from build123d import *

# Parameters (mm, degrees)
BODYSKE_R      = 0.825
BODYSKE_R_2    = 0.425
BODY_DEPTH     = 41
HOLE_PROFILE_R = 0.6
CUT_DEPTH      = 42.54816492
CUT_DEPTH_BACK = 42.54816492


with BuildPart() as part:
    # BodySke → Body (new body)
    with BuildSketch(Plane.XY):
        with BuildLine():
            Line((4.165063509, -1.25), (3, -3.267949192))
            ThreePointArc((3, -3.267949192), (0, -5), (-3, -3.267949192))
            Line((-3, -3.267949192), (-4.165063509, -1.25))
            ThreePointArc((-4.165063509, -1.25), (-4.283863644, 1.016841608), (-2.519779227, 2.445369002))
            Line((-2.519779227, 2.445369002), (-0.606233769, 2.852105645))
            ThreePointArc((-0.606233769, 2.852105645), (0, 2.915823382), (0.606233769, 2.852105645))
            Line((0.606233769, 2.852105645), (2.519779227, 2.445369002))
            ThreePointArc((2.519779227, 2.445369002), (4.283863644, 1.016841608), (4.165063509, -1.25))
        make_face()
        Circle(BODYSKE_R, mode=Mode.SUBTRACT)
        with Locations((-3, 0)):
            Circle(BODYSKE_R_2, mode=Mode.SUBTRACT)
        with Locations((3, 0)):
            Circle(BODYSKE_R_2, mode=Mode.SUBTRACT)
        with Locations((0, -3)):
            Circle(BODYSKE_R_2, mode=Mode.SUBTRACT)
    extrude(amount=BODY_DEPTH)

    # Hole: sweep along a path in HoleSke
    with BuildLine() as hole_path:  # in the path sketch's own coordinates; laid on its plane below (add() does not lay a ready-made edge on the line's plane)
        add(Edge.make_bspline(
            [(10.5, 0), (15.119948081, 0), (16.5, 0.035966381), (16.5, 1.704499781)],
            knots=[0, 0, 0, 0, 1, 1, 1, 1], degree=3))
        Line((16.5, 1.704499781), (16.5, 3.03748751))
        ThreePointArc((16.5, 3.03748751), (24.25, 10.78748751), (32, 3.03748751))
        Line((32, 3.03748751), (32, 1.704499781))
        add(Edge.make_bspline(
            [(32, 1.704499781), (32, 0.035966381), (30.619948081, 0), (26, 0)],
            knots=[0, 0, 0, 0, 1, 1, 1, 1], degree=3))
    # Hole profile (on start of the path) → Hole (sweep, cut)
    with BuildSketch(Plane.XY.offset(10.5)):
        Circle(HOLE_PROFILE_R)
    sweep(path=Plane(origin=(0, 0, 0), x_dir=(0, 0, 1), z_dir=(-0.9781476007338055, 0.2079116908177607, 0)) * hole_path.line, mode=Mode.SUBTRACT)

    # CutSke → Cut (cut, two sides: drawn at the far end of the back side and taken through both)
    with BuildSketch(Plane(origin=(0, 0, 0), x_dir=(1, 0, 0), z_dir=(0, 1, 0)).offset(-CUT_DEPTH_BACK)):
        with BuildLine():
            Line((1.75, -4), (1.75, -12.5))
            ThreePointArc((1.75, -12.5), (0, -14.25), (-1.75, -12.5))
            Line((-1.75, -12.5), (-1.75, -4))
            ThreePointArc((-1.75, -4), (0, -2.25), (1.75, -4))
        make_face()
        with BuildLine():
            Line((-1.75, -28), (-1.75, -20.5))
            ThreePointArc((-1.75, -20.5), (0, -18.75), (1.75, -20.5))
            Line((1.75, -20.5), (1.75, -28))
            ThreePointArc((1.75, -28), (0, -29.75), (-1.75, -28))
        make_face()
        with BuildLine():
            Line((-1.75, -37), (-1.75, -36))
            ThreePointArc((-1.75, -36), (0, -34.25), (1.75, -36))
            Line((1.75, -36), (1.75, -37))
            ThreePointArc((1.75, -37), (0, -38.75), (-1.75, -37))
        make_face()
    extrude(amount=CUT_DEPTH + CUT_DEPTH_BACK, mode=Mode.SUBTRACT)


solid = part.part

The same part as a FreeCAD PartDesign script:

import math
import FreeCAD as App
import Part
import Sketcher
Q = App.Units.Quantity

doc = App.newDocument("Part")
body = doc.addObject("PartDesign::Body", "Body")

sketch1 = body.newObject("Sketcher::SketchObject", "Sketch")
sketch1.AttachmentSupport = (doc.getObject("XY_Plane"), [""])
sketch1.MapMode = "FlatFace"
sketch1.addGeometry([
    Part.LineSegment(App.Vector(3, -3.267949, 0), App.Vector(4.165064, -1.25, 0)),
    Part.ArcOfCircle(Part.Circle(App.Vector(2, 0, 0), App.Vector(0, 0, 1), 2.5), math.radians(-30), math.radians(78)),
    Part.LineSegment(App.Vector(2.519779, 2.445369, 0), App.Vector(0.606234, 2.852106, 0)),
    Part.ArcOfCircle(Part.Circle(App.Vector(0, 0, 0), App.Vector(0, 0, 1), 2.915823), math.radians(78), math.radians(102)),
    Part.LineSegment(App.Vector(-0.606234, 2.852106, 0), App.Vector(-2.519779, 2.445369, 0)),
    Part.ArcOfCircle(Part.Circle(App.Vector(-2, 0, 0), App.Vector(0, 0, 1), 2.5), math.radians(102), math.radians(210)),
    Part.LineSegment(App.Vector(-4.165064, -1.25, 0), App.Vector(-3, -3.267949, 0)),
    Part.ArcOfCircle(Part.Circle(App.Vector(0, -1.535898, 0), App.Vector(0, 0, 1), 3.464102), math.radians(-150), math.radians(-30)),
    Part.Circle(App.Vector(0, -3, 0), App.Vector(0, 0, 1), 0.425),
    Part.Circle(App.Vector(3, 0, 0), App.Vector(0, 0, 1), 0.425),
    Part.Circle(App.Vector(0, 0, 0), App.Vector(0, 0, 1), 0.825),
    Part.Circle(App.Vector(-3, 0, 0), App.Vector(0, 0, 1), 0.425),
], False)
sketch1.addConstraint([
    Sketcher.Constraint("Tangent", 0, 2, 1, 1),
    Sketcher.Constraint("Tangent", 1, 2, 2, 1),
    Sketcher.Constraint("Tangent", 2, 2, 3, 1),
    Sketcher.Constraint("Tangent", 3, 2, 4, 1),
    Sketcher.Constraint("Tangent", 4, 2, 5, 1),
    Sketcher.Constraint("Tangent", 5, 2, 6, 1),
    Sketcher.Constraint("Tangent", 6, 2, 7, 1),
    Sketcher.Constraint("Tangent", 7, 2, 0, 1),
    Sketcher.Constraint("Coincident", 3, 3, -1, 1),
    Sketcher.Constraint("Coincident", 10, 3, -1, 1),
    Sketcher.Constraint("Equal", 1, 5),
    Sketcher.Constraint("Equal", 8, 9),
    Sketcher.Constraint("Equal", 9, 11),
    Sketcher.Constraint("Symmetric", 1, 3, 5, 3, -1, 1),
    Sketcher.Constraint("Symmetric", 9, 3, 11, 3, -1, 1),
    Sketcher.Constraint("Symmetric", 0, 2, 5, 2, -2),
    Sketcher.Constraint("PointOnObject", 8, 3, -2),
    Sketcher.Constraint("PointOnObject", 9, 3, -1),
    Sketcher.Constraint("Vertical", 11, 3, 6, 2),
    Sketcher.Constraint("Radius", 1, 2.5),
    Sketcher.Constraint("Diameter", 8, 0.85),
    Sketcher.Constraint("Diameter", 10, 1.65),
    Sketcher.Constraint("Angle", 0, Q("60 deg")),
    Sketcher.Constraint("Angle", 2, Q("168 deg")),
    Sketcher.Constraint("DistanceX", -1, 1, 1, 3, 2.0),
    Sketcher.Constraint("DistanceY", 8, 3, -1, 1, 3.0),
    Sketcher.Constraint("DistanceX", -1, 1, 9, 3, 3.0),
])
pad1 = body.newObject("PartDesign::Pad", "Pad")
pad1.Profile = sketch1
pad1.Length = 41

sketch2 = body.newObject("Sketcher::SketchObject", "Sketch001")
sketch2.AttachmentSupport = (doc.getObject("XY_Plane"), [""])
sketch2.MapMode = "FlatFace"
sketch2.AttachmentOffset = App.Placement(App.Vector(0, 0, 10.5), App.Rotation())
sketch2.addGeometry(Part.Circle(App.Vector(0, 0, 0), App.Vector(0, 0, 1), 0.6), False)
sketch2.addConstraint([
    Sketcher.Constraint("Coincident", 0, 3, -1, 1),
    Sketcher.Constraint("Diameter", 0, 1.2),
])

sketch3 = body.newObject("Sketcher::SketchObject", "Sketch002")
sketch3.Placement = App.Placement(App.Vector(0, 0, 0), App.Rotation(App.Vector(-0.207911691, -0.978147601, 0), App.Vector(0, 0, 1.000000001), App.Vector(-0.978147601, 0.207911691, 0), "ZXY"))
sketch3.addGeometry([
    Part.BSplineCurve([App.Vector(0, 10.5, 0), App.Vector(0, 15.119948, 0), App.Vector(-0.035966, 16.5, 0), App.Vector(-1.7045, 16.5, 0)], [4, 4], [0, 1], False, 3, [1, 1, 1, 1], False),
    Part.LineSegment(App.Vector(-1.7045, 16.5, 0), App.Vector(-3.037488, 16.5, 0)),
    Part.ArcOfCircle(Part.Circle(App.Vector(-3.037488, 24.25, 0), App.Vector(0, 0, 1), 7.75), math.radians(90), math.radians(270)),
    Part.LineSegment(App.Vector(-3.037488, 32, 0), App.Vector(-1.7045, 32, 0)),
    Part.BSplineCurve([App.Vector(-1.7045, 32, 0), App.Vector(-0.035966, 32, 0), App.Vector(0, 30.619948, 0), App.Vector(0, 26, 0)], [4, 4], [0, 1], False, 3, [1, 1, 1, 1], False),
], False)
sketch3.addConstraint([
    Sketcher.Constraint("Block", 0),
    Sketcher.Constraint("Block", 4),
    Sketcher.Constraint("Coincident", 0, 2, 1, 1),
    Sketcher.Constraint("Tangent", 1, 2, 2, 2),
    Sketcher.Constraint("Tangent", 2, 1, 3, 1),
    Sketcher.Constraint("Coincident", 3, 2, 4, 1),
    Sketcher.Constraint("Horizontal", 1),
    Sketcher.Constraint("Horizontal", 3),
    Sketcher.Constraint("DistanceX", 1, 2, 1, 1, 1.332988),
])
doc.recompute()

subtractivepipe = body.newObject("PartDesign::SubtractivePipe", "SubtractivePipe")
subtractivepipe.Profile = sketch2
subtractivepipe.Spine = (sketch3, ["Edge1", "Edge2", "Edge3", "Edge4", "Edge5"])

sketch4 = body.newObject("Sketcher::SketchObject", "Sketch003")
sketch4.AttachmentSupport = (doc.getObject("XZ_Plane"), [""])
sketch4.MapMode = "FlatFace"
sketch4.addGeometry([
    Part.LineSegment(App.Vector(1.75, 12.5, 0), App.Vector(1.75, 4, 0)),
    Part.ArcOfCircle(Part.Circle(App.Vector(0, 4, 0), App.Vector(0, 0, 1), 1.75), math.radians(180), math.radians(360)),
    Part.LineSegment(App.Vector(-1.75, 4, 0), App.Vector(-1.75, 12.5, 0)),
    Part.ArcOfCircle(Part.Circle(App.Vector(0, 12.5, 0), App.Vector(0, 0, 1), 1.75), math.radians(0), math.radians(180)),
    Part.LineSegment(App.Vector(-1.75, 20.5, 0), App.Vector(-1.75, 28, 0)),
    Part.ArcOfCircle(Part.Circle(App.Vector(0, 28, 0), App.Vector(0, 0, 1), 1.75), math.radians(0), math.radians(180)),
    Part.LineSegment(App.Vector(1.75, 28, 0), App.Vector(1.75, 20.5, 0)),
    Part.ArcOfCircle(Part.Circle(App.Vector(0, 20.5, 0), App.Vector(0, 0, 1), 1.75), math.radians(180), math.radians(360)),
    Part.LineSegment(App.Vector(-1.75, 36, 0), App.Vector(-1.75, 37, 0)),
    Part.ArcOfCircle(Part.Circle(App.Vector(0, 37, 0), App.Vector(0, 0, 1), 1.75), math.radians(0), math.radians(180)),
    Part.LineSegment(App.Vector(1.75, 37, 0), App.Vector(1.75, 36, 0)),
    Part.ArcOfCircle(Part.Circle(App.Vector(0, 36, 0), App.Vector(0, 0, 1), 1.75), math.radians(180), math.radians(360)),
], False)
sketch4.addConstraint([
    Sketcher.Constraint("Tangent", 0, 2, 1, 2),
    Sketcher.Constraint("Tangent", 1, 1, 2, 1),
    Sketcher.Constraint("Tangent", 2, 2, 3, 2),
    Sketcher.Constraint("Tangent", 3, 1, 0, 1),
    Sketcher.Constraint("Tangent", 4, 2, 5, 2),
    Sketcher.Constraint("Tangent", 5, 1, 6, 1),
    Sketcher.Constraint("Tangent", 6, 2, 7, 2),
    Sketcher.Constraint("Tangent", 7, 1, 4, 1),
    Sketcher.Constraint("Tangent", 8, 2, 9, 2),
    Sketcher.Constraint("Tangent", 9, 1, 10, 1),
    Sketcher.Constraint("Tangent", 10, 2, 11, 2),
    Sketcher.Constraint("Tangent", 11, 1, 8, 1),
    Sketcher.Constraint("Vertical", 0),
    Sketcher.Constraint("Vertical", 2),
    Sketcher.Constraint("Vertical", 4),
    Sketcher.Constraint("Vertical", 6),
    Sketcher.Constraint("Vertical", 8),
    Sketcher.Constraint("Vertical", 10),
    Sketcher.Constraint("Equal", 3, 5),
    Sketcher.Constraint("Equal", 7, 9),
    Sketcher.Constraint("PointOnObject", 1, 3, -2),
    Sketcher.Constraint("PointOnObject", 5, 3, -2),
    Sketcher.Constraint("PointOnObject", 9, 3, -2),
    Sketcher.Constraint("DistanceY", 8, 1, 8, 2, 1.0),
    Sketcher.Constraint("Radius", 1, 1.75),
    Sketcher.Constraint("DistanceY", 0, 2, 0, 1, 8.5),
    Sketcher.Constraint("DistanceY", 4, 1, 4, 2, 7.5),
    Sketcher.Constraint("DistanceY", -1, 1, 1, 3, 4.0),
    Sketcher.Constraint("DistanceY", -1, 1, 5, 3, 28.0),
    Sketcher.Constraint("DistanceY", -1, 1, 9, 3, 37.0),
])
pocket1 = body.newObject("PartDesign::Pocket", "Pocket")
pocket1.Profile = sketch4
pocket1.Type = "ThroughAll"
pocket1.Midplane = True

doc.recompute()
